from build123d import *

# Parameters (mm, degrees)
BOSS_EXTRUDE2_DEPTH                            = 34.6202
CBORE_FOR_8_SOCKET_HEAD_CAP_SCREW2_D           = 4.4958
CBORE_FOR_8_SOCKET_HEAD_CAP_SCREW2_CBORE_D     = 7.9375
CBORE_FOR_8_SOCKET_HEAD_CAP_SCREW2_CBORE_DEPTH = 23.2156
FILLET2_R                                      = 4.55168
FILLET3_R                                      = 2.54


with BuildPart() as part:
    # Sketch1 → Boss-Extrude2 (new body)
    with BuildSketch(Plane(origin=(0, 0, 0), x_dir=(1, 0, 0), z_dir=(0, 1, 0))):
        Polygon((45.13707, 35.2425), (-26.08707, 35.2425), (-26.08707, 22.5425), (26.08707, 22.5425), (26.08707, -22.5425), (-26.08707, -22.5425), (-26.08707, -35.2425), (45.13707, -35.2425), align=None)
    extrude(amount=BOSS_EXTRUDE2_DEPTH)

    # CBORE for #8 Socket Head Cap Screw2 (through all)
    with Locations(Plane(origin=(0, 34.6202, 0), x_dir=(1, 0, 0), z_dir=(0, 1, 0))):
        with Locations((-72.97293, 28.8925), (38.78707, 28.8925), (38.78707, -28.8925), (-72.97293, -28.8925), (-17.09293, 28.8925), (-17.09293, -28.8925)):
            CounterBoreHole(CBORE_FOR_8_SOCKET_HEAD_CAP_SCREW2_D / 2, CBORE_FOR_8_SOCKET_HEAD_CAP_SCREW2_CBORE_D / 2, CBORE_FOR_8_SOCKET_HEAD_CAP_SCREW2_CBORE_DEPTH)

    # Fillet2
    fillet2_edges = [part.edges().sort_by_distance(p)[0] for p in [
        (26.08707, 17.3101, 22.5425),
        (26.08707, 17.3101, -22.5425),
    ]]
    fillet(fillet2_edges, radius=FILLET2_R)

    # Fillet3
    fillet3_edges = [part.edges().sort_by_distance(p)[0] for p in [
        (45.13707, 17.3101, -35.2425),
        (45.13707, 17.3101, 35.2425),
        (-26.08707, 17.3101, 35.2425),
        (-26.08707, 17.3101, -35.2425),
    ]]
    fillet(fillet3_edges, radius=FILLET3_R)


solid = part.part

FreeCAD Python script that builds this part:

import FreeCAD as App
import Part
import Sketcher
from FreeCAD import Vector
Q = App.Units.Quantity


def edges_at(feature, points):
    """Names of the edges that pass closest to the given points."""
    edges = feature.Shape.Edges
    near = lambda p: min(range(len(edges)), key=lambda i: edges[i].distToShape(Part.Vertex(*p))[0])
    return sorted({f"Edge{near(p) + 1}" for p in points})


def add_polygon(sketch, points):
    """Adds a closed chain of lines whose ends are joined by coincident constraints."""
    first, n = sketch.GeometryCount, len(points)
    for a, b in zip(points, points[1:] + points[:1]):
        sketch.addGeometry(Part.LineSegment(App.Vector(*a, 0), App.Vector(*b, 0)), False)
    for i in range(n):
        sketch.addConstraint(Sketcher.Constraint("Coincident", first + i, 2, first + (i + 1) % n, 1))

doc = App.newDocument("Part")
body = doc.addObject("PartDesign::Body", "Body")

# Sketch on XZ plane
sketch1 = body.newObject("Sketcher::SketchObject", "Sketch")
sketch1.AttachmentSupport = (doc.getObject("XZ_Plane"), [""])
sketch1.MapMode = "FlatFace"
add_polygon(sketch1, [(45, -35), (-26, -35), (-26, -23), (26, -23), (26, 23), (-26, 23), (-26, 35), (45, 35)])  # lines 0-7
sketch1.addConstraint([
    Sketcher.Constraint("Horizontal", 0),
    Sketcher.Constraint("Vertical", 1),
    Sketcher.Constraint("Horizontal", 2),
    Sketcher.Constraint("Vertical", 3),
    Sketcher.Constraint("Horizontal", 4),
    Sketcher.Constraint("Vertical", 5),
    Sketcher.Constraint("Horizontal", 6),
    Sketcher.Constraint("Vertical", 7),
    Sketcher.Constraint("Symmetric", 1, 2, 3, 2, -1, 1),
    Sketcher.Constraint("Symmetric", 0, 2, 5, 2, -1),
    Sketcher.Constraint("DistanceY", 1, 1, 1, 2, Q("0.5 in")),
    Sketcher.Constraint("DistanceY", 3, 1, 3, 2, Q("1.775 in")),
    Sketcher.Constraint("DistanceX", 3, 2, 6, 2, Q("0.75 in")),
    Sketcher.Constraint("DistanceX", 0, 2, 0, 1, Q("2.8041 in")),
])
pad1 = body.newObject("PartDesign::Pad", "Pad")
pad1.Profile = sketch1
pad1.Length = Q("1.363 in")
pad1.Reversed = True

# Sketch on XZ plane
sketch2 = body.newObject("Sketcher::SketchObject", "Sketch001")
sketch2.AttachmentSupport = (doc.getObject("XZ_Plane"), [""])
sketch2.MapMode = "FlatFace"
sketch2.AttachmentOffset = App.Placement(Vector(0, 0, -1.363 * 25.4), App.Rotation())
sketch2.addGeometry([
    Part.Circle(Vector(-73, -28.9, 0), Vector(0, 0, 1), 2.2),  # 0
    Part.Circle(Vector(38.8, -28.9, 0), Vector(0, 0, 1), 2.2),  # 1
    Part.Circle(Vector(38.8, 28.9, 0), Vector(0, 0, 1), 2.2),  # 2
    Part.Circle(Vector(-73, 28.9, 0), Vector(0, 0, 1), 2.2),  # 3
    Part.Circle(Vector(-17.1, -28.9, 0), Vector(0, 0, 1), 2.2),  # 4
    Part.Circle(Vector(-17.1, 28.9, 0), Vector(0, 0, 1), 2.2),  # 5
], False)
sketch2.addConstraint([
    Sketcher.Constraint("Equal", 0, 1),
    Sketcher.Constraint("Equal", 1, 2),
    Sketcher.Constraint("Equal", 2, 3),
    Sketcher.Constraint("Equal", 3, 4),
    Sketcher.Constraint("Equal", 4, 5),
    Sketcher.Constraint("Symmetric", 1, 3, 2, 3, -1),
    Sketcher.Constraint("Symmetric", 0, 3, 3, 3, -1),
    Sketcher.Constraint("Symmetric", 4, 3, 5, 3, -1),
    Sketcher.Constraint("Horizontal", 0, 3, 1, 3),
    Sketcher.Constraint("Horizontal", 1, 3, 4, 3),
    Sketcher.Constraint("Diameter", 0, Q("0.177 in")),
    Sketcher.Constraint("DistanceX", 0, 3, 1, 3, Q("4.4 in")),
    Sketcher.Constraint("DistanceX", 4, 3, 1, 3, Q("2.2 in")),
    Sketcher.Constraint("DistanceY", 1, 3, 2, 3, Q("2.275 in")),
    Sketcher.Constraint("DistanceX", 0, 3, -1, 1, 72.97293),
])
doc.recompute()
hole = body.newObject("PartDesign::Hole", "Hole")
hole.Profile = sketch2
hole.ThreadType = "None"
hole.Diameter = Q("0.177 in")
hole.DepthType = "ThroughAll"
hole.HoleCutType = "Counterbore"
hole.HoleCutDiameter = Q("0.3125 in")
hole.HoleCutDepth = Q("0.914 in")
hole.Reversed = True
doc.recompute()

fillet = body.newObject("PartDesign::Fillet", "Fillet")
fillet.Base = (hole, edges_at(hole, [(26.087, 17.31, 22.543), (26.087, 17.31, -22.543)]))
fillet.Radius = Q("0.1792 in")
doc.recompute()

fillet2 = body.newObject("PartDesign::Fillet", "Fillet001")
fillet2.Base = (fillet, edges_at(fillet, [
    (45.137, 17.31, -35.242),
    (45.137, 17.31, 35.242),
    (-26.087, 17.31, 35.242),
    (-26.087, 17.31, -35.242),
]))
fillet2.Radius = Q("0.1 in")

doc.recompute()
